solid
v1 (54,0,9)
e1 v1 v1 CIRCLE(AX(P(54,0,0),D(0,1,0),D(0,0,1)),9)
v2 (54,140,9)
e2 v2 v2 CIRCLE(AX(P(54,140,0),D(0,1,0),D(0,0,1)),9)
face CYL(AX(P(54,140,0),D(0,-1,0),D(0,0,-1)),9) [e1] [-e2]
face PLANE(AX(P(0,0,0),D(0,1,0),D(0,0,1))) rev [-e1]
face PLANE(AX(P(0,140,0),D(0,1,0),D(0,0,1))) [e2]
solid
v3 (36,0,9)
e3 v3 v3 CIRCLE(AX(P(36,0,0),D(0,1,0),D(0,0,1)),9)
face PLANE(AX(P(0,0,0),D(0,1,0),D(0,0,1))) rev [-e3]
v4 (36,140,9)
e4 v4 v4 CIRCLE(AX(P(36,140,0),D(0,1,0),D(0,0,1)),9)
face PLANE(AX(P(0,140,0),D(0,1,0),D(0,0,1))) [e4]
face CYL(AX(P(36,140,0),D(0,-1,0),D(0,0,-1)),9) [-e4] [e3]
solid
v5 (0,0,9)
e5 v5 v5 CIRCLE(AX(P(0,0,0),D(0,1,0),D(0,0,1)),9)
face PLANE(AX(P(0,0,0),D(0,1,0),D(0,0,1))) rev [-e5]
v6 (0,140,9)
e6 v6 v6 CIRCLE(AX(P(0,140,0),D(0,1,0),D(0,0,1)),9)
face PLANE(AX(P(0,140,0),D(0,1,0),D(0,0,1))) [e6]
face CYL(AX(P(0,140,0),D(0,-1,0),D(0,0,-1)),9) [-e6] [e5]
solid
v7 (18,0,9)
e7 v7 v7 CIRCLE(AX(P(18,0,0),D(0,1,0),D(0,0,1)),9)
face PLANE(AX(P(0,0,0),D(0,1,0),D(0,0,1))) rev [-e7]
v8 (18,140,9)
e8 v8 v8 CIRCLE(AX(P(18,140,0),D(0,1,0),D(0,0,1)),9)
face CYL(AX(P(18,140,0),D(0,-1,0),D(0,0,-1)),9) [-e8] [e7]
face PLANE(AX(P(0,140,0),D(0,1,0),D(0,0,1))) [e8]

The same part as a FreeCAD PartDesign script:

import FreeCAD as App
import Part
import Sketcher
Q = App.Units.Quantity

doc = App.newDocument("Part")
body = doc.addObject("PartDesign::Body", "Body")

sketch1 = body.newObject("Sketcher::SketchObject", "Sketch")
sketch1.AttachmentSupport = (doc.getObject("XZ_Plane"), [""])
sketch1.MapMode = "FlatFace"
sketch1.addGeometry(Part.Circle(App.Vector(0, 0, 0), App.Vector(0, 0, 1), 9), False)
sketch1.addConstraint([
    Sketcher.Constraint("Coincident", 0, 3, -1, 1),
    Sketcher.Constraint("Diameter", 0, Q("18 mm")),
])
pad1 = body.newObject("PartDesign::Pad", "Pad")
pad1.Profile = sketch1
pad1.Length = 140
pad1.Reversed = True
body2 = doc.addObject("PartDesign::Body", "Body001")

sketch2 = body2.newObject("Sketcher::SketchObject", "Sketch001")
sketch2.AttachmentSupport = (doc.getObject("XZ_Plane001"), [""])
sketch2.MapMode = "FlatFace"
sketch2.addGeometry(Part.Circle(App.Vector(18, 0, 0), App.Vector(0, 0, 1), 9), False)
sketch2.addConstraint([
    Sketcher.Constraint("PointOnObject", 0, 3, -1),
    Sketcher.Constraint("Diameter", 0, Q("18 mm")),
    Sketcher.Constraint("DistanceX", -1, 1, 0, 3, Q("18 mm")),
])
pad2 = body2.newObject("PartDesign::Pad", "Pad001")
pad2.Profile = sketch2
pad2.Length = 140
pad2.Reversed = True
body3 = doc.addObject("PartDesign::Body", "Body002")

sketch3 = body3.newObject("Sketcher::SketchObject", "Sketch002")
sketch3.AttachmentSupport = (doc.getObject("XZ_Plane002"), [""])
sketch3.MapMode = "FlatFace"
sketch3.addGeometry(Part.Circle(App.Vector(36, 0, 0), App.Vector(0, 0, 1), 9), False)
sketch3.addConstraint([
    Sketcher.Constraint("PointOnObject", 0, 3, -1),
    Sketcher.Constraint("Diameter", 0, Q("18 mm")),
    Sketcher.Constraint("DistanceX", -1, 1, 0, 3, Q("36 mm")),
])
pad3 = body3.newObject("PartDesign::Pad", "Pad002")
pad3.Profile = sketch3
pad3.Length = 140
pad3.Reversed = True
body4 = doc.addObject("PartDesign::Body", "Body003")

sketch4 = body4.newObject("Sketcher::SketchObject", "Sketch003")
sketch4.AttachmentSupport = (doc.getObject("XZ_Plane003"), [""])
sketch4.MapMode = "FlatFace"
sketch4.addGeometry(Part.Circle(App.Vector(54, 0, 0), App.Vector(0, 0, 1), 9), False)
sketch4.addConstraint([
    Sketcher.Constraint("PointOnObject", 0, 3, -1),
    Sketcher.Constraint("Diameter", 0, Q("18 mm")),
    Sketcher.Constraint("DistanceX", -1, 1, 0, 3, Q("54 mm")),
])
pad4 = body4.newObject("PartDesign::Pad", "Pad003")
pad4.Profile = sketch4
pad4.Length = 140
pad4.Reversed = True

doc.recompute()
